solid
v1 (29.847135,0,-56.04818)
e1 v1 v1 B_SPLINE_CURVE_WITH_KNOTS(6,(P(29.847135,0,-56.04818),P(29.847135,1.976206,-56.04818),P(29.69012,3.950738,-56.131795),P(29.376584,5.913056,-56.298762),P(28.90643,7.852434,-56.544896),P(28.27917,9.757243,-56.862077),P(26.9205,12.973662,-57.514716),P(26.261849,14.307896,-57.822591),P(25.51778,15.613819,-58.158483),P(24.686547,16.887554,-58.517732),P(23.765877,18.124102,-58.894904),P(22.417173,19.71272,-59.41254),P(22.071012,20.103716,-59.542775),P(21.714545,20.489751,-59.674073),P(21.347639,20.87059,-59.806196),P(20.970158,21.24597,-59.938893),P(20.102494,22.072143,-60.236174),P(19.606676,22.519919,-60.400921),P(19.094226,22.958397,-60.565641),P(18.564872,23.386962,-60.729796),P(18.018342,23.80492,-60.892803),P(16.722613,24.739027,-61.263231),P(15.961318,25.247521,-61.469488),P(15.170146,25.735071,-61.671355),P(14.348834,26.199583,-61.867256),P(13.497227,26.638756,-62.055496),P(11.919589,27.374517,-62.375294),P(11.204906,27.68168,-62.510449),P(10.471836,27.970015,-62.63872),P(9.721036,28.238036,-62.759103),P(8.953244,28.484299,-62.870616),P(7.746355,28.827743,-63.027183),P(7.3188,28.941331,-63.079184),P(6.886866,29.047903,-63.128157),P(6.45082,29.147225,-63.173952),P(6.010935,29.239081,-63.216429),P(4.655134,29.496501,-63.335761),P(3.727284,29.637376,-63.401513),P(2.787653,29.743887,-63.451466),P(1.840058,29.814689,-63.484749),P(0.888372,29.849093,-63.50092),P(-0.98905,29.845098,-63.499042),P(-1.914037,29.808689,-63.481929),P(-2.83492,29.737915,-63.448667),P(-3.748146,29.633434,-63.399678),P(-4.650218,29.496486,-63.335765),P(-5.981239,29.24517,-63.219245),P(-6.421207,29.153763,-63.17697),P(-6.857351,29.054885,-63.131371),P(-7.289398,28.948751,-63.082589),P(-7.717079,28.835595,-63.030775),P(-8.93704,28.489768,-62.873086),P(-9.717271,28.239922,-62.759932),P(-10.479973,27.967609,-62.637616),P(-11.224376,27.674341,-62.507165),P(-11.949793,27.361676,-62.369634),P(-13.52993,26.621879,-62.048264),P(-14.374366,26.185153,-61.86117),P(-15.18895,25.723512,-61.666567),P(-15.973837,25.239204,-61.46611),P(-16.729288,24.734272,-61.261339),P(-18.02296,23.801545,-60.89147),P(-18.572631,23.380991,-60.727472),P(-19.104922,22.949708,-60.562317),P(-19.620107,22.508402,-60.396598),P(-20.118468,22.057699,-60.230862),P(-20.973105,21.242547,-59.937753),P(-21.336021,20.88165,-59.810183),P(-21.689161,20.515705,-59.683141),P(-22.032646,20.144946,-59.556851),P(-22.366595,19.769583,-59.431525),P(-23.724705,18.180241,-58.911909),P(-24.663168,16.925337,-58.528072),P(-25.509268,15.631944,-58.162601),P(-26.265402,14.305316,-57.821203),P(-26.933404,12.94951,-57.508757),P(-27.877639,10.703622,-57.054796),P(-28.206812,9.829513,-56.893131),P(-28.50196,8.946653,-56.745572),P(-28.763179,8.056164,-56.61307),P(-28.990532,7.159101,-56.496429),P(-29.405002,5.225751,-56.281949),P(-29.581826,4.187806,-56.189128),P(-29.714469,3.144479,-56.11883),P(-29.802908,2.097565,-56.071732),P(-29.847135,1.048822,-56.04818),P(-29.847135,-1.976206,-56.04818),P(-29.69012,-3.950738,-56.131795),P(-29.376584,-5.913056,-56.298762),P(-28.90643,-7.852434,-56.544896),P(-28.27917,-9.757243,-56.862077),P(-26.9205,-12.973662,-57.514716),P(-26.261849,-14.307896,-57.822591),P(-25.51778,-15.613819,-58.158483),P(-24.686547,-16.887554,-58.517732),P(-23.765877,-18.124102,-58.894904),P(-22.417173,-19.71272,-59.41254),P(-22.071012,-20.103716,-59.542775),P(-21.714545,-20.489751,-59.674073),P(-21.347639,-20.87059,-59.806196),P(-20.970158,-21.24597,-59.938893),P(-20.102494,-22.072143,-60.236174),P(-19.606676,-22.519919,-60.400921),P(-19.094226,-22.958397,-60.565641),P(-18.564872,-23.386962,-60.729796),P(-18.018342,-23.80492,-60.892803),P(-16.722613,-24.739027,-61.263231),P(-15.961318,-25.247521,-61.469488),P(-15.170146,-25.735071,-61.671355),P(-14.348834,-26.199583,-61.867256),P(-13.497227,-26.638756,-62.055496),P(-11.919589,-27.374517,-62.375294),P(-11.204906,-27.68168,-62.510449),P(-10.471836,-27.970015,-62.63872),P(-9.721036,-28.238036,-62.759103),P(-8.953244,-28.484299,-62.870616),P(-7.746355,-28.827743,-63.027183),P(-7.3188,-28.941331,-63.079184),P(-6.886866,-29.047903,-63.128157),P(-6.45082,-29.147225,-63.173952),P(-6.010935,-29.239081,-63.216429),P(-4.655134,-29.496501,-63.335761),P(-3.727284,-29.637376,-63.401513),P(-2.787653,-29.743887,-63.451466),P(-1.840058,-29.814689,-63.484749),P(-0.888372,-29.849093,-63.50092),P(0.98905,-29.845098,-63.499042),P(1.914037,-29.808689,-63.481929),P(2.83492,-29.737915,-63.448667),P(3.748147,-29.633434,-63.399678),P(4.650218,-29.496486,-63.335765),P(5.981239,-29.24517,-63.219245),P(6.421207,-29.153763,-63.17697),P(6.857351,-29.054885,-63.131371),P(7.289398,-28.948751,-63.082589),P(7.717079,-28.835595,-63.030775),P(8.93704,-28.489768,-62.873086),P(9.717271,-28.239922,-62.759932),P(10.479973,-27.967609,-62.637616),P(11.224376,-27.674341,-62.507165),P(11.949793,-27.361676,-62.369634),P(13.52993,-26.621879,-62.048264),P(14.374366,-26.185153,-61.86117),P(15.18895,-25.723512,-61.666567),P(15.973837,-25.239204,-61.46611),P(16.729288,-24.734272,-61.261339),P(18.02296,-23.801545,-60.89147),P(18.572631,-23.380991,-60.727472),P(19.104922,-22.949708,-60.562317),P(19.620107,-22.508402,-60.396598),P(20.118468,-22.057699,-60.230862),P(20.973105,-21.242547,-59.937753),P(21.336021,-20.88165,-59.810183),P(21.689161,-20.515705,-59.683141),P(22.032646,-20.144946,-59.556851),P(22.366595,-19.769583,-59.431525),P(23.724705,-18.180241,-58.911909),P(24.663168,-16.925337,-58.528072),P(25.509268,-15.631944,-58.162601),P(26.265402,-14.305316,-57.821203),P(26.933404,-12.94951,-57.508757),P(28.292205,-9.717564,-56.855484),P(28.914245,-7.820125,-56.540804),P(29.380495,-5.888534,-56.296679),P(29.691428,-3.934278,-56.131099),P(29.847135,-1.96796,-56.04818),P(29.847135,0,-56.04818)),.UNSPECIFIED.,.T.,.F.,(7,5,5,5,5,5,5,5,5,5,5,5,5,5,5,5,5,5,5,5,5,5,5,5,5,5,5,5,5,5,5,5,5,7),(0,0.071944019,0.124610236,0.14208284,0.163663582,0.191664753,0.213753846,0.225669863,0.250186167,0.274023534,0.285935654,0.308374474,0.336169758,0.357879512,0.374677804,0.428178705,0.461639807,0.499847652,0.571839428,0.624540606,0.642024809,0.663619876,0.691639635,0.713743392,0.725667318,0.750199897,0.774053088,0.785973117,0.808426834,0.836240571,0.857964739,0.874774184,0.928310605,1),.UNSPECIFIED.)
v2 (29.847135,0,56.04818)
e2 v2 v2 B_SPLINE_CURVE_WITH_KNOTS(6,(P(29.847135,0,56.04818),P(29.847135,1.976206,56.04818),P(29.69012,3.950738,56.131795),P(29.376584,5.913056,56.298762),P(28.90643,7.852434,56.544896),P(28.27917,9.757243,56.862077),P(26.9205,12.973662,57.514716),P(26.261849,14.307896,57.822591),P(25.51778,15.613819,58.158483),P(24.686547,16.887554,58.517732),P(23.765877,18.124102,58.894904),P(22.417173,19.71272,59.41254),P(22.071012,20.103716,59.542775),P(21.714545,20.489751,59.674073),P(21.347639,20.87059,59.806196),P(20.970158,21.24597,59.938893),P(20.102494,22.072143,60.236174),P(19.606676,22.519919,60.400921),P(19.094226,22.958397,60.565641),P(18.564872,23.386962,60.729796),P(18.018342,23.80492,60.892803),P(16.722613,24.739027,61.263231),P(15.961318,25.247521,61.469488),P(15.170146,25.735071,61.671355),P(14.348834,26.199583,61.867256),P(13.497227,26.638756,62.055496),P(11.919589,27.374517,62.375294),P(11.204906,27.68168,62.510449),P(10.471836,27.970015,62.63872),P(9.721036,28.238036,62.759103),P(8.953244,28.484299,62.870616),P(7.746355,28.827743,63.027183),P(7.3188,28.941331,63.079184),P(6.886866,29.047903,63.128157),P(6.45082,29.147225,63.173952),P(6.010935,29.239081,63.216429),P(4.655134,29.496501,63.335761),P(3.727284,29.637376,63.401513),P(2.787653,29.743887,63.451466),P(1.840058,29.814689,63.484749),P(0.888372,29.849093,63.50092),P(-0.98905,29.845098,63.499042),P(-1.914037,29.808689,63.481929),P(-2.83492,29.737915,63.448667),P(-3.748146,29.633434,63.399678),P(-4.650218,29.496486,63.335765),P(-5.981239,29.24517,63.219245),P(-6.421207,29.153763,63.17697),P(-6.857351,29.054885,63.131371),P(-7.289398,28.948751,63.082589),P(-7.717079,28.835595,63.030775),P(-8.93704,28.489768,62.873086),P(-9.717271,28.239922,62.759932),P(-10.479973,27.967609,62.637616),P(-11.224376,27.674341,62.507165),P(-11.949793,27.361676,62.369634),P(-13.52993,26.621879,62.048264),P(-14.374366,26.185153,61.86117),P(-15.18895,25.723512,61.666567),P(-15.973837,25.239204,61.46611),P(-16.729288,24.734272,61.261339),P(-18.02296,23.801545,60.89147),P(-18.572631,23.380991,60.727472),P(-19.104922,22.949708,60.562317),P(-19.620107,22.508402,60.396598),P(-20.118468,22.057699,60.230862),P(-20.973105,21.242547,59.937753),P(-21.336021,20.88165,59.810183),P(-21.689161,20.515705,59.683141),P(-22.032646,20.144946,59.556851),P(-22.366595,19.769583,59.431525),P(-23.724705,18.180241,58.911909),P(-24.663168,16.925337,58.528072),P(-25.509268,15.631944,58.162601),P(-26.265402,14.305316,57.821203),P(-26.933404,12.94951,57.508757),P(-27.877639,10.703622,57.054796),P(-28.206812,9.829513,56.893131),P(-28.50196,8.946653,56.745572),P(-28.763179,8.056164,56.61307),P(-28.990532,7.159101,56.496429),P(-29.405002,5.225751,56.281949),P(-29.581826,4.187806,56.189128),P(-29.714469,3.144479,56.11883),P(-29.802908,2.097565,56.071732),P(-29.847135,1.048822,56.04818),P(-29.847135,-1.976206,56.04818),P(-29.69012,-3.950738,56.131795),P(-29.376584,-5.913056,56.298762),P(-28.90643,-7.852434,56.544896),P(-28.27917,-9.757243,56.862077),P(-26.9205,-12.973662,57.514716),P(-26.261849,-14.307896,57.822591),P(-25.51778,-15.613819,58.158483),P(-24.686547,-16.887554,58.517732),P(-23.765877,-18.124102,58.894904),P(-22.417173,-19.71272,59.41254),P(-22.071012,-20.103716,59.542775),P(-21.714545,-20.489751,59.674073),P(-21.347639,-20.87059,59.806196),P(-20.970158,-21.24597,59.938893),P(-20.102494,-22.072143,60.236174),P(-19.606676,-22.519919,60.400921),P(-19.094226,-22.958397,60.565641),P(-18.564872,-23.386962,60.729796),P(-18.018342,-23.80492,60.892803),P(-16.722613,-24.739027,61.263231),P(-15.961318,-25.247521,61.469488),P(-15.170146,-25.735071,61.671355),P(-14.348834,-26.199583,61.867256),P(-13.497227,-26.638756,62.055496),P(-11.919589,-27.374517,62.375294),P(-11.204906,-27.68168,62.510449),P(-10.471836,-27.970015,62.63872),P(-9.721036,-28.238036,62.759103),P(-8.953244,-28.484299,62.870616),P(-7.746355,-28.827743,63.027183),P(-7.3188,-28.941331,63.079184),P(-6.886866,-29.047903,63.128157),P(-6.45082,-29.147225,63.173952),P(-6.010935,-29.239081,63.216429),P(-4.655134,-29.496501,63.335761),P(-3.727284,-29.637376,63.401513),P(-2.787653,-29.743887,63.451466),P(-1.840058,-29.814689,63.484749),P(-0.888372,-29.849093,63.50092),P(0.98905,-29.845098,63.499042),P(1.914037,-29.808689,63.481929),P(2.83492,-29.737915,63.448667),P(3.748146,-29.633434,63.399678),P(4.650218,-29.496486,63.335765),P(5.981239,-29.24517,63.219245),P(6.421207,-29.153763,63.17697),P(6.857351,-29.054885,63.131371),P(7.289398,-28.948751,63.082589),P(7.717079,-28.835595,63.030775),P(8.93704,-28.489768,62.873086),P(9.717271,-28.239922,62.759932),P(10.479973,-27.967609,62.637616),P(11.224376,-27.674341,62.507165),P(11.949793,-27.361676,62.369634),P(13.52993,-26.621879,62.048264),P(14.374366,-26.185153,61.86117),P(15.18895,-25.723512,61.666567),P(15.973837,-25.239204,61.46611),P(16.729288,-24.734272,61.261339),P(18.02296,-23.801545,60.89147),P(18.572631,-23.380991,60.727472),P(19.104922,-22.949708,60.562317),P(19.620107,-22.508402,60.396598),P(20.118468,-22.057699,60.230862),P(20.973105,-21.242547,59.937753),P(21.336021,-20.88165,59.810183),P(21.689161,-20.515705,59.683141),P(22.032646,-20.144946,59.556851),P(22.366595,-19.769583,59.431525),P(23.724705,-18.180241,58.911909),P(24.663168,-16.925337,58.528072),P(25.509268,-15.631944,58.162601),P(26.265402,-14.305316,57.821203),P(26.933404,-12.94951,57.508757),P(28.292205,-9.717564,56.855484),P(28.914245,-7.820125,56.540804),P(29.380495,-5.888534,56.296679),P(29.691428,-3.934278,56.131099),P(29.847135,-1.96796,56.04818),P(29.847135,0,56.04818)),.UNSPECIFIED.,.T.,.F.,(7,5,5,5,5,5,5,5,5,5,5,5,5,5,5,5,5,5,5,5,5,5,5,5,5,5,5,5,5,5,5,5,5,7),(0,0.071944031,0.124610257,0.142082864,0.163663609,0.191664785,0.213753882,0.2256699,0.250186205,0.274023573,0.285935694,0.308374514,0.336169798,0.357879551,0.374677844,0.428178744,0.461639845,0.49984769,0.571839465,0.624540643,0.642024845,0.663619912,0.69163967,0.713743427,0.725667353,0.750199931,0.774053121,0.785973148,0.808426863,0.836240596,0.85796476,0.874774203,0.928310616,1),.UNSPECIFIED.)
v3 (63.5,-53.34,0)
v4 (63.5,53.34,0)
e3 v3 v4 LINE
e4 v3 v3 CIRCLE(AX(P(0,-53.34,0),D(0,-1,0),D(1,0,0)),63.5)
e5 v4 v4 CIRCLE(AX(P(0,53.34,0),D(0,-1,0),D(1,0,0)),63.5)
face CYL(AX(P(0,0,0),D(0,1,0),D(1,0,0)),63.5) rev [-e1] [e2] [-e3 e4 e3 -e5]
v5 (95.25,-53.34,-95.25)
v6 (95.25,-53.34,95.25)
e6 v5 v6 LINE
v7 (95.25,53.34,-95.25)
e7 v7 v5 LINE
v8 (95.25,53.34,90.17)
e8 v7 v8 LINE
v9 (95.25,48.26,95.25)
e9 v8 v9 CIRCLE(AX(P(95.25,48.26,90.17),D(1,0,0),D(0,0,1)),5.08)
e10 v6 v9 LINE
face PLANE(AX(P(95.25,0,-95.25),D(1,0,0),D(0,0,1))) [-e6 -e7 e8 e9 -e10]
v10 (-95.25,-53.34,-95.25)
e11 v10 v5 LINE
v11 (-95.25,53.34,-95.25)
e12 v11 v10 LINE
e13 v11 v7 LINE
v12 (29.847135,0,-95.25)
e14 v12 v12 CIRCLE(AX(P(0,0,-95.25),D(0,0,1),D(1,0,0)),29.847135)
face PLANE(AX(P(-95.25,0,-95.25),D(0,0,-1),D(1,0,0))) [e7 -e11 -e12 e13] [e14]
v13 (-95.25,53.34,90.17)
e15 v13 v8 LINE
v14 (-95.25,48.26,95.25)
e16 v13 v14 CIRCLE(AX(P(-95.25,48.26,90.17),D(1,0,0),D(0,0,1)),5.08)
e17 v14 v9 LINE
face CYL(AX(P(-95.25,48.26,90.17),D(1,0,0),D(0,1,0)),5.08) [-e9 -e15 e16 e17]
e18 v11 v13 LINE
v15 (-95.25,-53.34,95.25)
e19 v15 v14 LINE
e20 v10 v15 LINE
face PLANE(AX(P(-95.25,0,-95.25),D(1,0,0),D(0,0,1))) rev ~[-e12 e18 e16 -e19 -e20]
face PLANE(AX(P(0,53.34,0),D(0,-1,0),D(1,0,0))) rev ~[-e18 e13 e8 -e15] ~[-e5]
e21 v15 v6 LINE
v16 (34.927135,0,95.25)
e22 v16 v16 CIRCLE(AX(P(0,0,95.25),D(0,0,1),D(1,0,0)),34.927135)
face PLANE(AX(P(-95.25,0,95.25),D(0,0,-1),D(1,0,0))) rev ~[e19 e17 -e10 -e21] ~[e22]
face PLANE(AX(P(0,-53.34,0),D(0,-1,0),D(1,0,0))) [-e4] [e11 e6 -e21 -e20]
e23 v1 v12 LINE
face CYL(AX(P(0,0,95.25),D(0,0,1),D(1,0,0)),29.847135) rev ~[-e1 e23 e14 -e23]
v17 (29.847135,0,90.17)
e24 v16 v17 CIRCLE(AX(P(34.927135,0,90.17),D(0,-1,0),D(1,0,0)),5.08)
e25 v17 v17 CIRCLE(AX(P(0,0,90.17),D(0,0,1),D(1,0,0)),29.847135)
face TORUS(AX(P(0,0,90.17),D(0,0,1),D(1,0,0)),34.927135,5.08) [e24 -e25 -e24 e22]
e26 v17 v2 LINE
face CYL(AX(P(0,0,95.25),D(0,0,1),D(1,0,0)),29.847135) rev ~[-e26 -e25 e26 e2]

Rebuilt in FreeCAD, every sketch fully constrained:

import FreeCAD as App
import Part
import Sketcher
from FreeCAD import Vector
Q = App.Units.Quantity


def edges_at(feature, points):
    """Names of the edges that pass closest to the given points."""
    edges = feature.Shape.Edges
    near = lambda p: min(range(len(edges)), key=lambda i: edges[i].distToShape(Part.Vertex(*p))[0])
    return sorted({f"Edge{near(p) + 1}" for p in points})

doc = App.newDocument("Part")
body = doc.addObject("PartDesign::Body", "Body")

# Sketch on XZ plane
sketch1 = body.newObject("Sketcher::SketchObject", "Sketch")
sketch1.AttachmentSupport = (doc.getObject("XZ_Plane"), [""])
sketch1.MapMode = "FlatFace"
sketch1.addGeometry([
    Part.LineSegment(Vector(-95.25, 95.25, 0), Vector(-95.25, -95.25, 0)),  # 0
    Part.LineSegment(Vector(-95.25, -95.25, 0), Vector(95.25, -95.25, 0)),  # 1
    Part.LineSegment(Vector(95.25, -95.25, 0), Vector(95.25, 95.25, 0)),  # 2
    Part.LineSegment(Vector(95.25, 95.25, 0), Vector(-95.25, 95.25, 0)),  # 3
    Part.Circle(Vector(0, 0, 0), Vector(0, 0, 1), 63.5),  # 4
], False)
sketch1.addConstraint([
    Sketcher.Constraint("Coincident", 0, 2, 1, 1),
    Sketcher.Constraint("Coincident", 1, 2, 2, 1),
    Sketcher.Constraint("Coincident", 2, 2, 3, 1),
    Sketcher.Constraint("Coincident", 3, 2, 0, 1),
    Sketcher.Constraint("Vertical", 0),
    Sketcher.Constraint("Horizontal", 1),
    Sketcher.Constraint("Vertical", 2),
    Sketcher.Constraint("Horizontal", 3),
    Sketcher.Constraint("Coincident", 4, 3, -1, 1),
    Sketcher.Constraint("Symmetric", 0, 2, 2, 2, -1, 1),
    Sketcher.Constraint("Equal", 3, 0),
    Sketcher.Constraint("Diameter", 4, Q("5 in")),
    Sketcher.Constraint("DistanceX", 1, 1, 1, 2, Q("7.5 in")),
])
pad1 = body.newObject("PartDesign::Pad", "Pad")
pad1.Profile = sketch1
pad1.Length = Q("4.2 in")
pad1.Midplane = True

# Sketch on XY plane
sketch2 = body.newObject("Sketcher::SketchObject", "Sketch001")
sketch2.AttachmentSupport = (doc.getObject("XY_Plane"), [""])
sketch2.MapMode = "FlatFace"
sketch2.AttachmentOffset = App.Placement(Vector(0, 0, 3.75 * 25.4), App.Rotation())
sketch2.addGeometry(Part.Circle(Vector(0, 0, 0), Vector(0, 0, 1), 29.847135), False)
sketch2.addConstraint([
    Sketcher.Constraint("Coincident", 0, 3, -1, 1),
    Sketcher.Constraint("Diameter", 0, 59.69427),
])
pocket1 = body.newObject("PartDesign::Pocket", "Pocket")
pocket1.Profile = sketch2
pocket1.Type = "ThroughAll"
doc.recompute()

fillet = body.newObject("PartDesign::Fillet", "Fillet")
fillet.Base = (pocket1, edges_at(pocket1, [(-29.847, 0, 95.25), (0, 53.34, 95.25)]))
fillet.Radius = Q("0.2 in")

doc.recompute()
